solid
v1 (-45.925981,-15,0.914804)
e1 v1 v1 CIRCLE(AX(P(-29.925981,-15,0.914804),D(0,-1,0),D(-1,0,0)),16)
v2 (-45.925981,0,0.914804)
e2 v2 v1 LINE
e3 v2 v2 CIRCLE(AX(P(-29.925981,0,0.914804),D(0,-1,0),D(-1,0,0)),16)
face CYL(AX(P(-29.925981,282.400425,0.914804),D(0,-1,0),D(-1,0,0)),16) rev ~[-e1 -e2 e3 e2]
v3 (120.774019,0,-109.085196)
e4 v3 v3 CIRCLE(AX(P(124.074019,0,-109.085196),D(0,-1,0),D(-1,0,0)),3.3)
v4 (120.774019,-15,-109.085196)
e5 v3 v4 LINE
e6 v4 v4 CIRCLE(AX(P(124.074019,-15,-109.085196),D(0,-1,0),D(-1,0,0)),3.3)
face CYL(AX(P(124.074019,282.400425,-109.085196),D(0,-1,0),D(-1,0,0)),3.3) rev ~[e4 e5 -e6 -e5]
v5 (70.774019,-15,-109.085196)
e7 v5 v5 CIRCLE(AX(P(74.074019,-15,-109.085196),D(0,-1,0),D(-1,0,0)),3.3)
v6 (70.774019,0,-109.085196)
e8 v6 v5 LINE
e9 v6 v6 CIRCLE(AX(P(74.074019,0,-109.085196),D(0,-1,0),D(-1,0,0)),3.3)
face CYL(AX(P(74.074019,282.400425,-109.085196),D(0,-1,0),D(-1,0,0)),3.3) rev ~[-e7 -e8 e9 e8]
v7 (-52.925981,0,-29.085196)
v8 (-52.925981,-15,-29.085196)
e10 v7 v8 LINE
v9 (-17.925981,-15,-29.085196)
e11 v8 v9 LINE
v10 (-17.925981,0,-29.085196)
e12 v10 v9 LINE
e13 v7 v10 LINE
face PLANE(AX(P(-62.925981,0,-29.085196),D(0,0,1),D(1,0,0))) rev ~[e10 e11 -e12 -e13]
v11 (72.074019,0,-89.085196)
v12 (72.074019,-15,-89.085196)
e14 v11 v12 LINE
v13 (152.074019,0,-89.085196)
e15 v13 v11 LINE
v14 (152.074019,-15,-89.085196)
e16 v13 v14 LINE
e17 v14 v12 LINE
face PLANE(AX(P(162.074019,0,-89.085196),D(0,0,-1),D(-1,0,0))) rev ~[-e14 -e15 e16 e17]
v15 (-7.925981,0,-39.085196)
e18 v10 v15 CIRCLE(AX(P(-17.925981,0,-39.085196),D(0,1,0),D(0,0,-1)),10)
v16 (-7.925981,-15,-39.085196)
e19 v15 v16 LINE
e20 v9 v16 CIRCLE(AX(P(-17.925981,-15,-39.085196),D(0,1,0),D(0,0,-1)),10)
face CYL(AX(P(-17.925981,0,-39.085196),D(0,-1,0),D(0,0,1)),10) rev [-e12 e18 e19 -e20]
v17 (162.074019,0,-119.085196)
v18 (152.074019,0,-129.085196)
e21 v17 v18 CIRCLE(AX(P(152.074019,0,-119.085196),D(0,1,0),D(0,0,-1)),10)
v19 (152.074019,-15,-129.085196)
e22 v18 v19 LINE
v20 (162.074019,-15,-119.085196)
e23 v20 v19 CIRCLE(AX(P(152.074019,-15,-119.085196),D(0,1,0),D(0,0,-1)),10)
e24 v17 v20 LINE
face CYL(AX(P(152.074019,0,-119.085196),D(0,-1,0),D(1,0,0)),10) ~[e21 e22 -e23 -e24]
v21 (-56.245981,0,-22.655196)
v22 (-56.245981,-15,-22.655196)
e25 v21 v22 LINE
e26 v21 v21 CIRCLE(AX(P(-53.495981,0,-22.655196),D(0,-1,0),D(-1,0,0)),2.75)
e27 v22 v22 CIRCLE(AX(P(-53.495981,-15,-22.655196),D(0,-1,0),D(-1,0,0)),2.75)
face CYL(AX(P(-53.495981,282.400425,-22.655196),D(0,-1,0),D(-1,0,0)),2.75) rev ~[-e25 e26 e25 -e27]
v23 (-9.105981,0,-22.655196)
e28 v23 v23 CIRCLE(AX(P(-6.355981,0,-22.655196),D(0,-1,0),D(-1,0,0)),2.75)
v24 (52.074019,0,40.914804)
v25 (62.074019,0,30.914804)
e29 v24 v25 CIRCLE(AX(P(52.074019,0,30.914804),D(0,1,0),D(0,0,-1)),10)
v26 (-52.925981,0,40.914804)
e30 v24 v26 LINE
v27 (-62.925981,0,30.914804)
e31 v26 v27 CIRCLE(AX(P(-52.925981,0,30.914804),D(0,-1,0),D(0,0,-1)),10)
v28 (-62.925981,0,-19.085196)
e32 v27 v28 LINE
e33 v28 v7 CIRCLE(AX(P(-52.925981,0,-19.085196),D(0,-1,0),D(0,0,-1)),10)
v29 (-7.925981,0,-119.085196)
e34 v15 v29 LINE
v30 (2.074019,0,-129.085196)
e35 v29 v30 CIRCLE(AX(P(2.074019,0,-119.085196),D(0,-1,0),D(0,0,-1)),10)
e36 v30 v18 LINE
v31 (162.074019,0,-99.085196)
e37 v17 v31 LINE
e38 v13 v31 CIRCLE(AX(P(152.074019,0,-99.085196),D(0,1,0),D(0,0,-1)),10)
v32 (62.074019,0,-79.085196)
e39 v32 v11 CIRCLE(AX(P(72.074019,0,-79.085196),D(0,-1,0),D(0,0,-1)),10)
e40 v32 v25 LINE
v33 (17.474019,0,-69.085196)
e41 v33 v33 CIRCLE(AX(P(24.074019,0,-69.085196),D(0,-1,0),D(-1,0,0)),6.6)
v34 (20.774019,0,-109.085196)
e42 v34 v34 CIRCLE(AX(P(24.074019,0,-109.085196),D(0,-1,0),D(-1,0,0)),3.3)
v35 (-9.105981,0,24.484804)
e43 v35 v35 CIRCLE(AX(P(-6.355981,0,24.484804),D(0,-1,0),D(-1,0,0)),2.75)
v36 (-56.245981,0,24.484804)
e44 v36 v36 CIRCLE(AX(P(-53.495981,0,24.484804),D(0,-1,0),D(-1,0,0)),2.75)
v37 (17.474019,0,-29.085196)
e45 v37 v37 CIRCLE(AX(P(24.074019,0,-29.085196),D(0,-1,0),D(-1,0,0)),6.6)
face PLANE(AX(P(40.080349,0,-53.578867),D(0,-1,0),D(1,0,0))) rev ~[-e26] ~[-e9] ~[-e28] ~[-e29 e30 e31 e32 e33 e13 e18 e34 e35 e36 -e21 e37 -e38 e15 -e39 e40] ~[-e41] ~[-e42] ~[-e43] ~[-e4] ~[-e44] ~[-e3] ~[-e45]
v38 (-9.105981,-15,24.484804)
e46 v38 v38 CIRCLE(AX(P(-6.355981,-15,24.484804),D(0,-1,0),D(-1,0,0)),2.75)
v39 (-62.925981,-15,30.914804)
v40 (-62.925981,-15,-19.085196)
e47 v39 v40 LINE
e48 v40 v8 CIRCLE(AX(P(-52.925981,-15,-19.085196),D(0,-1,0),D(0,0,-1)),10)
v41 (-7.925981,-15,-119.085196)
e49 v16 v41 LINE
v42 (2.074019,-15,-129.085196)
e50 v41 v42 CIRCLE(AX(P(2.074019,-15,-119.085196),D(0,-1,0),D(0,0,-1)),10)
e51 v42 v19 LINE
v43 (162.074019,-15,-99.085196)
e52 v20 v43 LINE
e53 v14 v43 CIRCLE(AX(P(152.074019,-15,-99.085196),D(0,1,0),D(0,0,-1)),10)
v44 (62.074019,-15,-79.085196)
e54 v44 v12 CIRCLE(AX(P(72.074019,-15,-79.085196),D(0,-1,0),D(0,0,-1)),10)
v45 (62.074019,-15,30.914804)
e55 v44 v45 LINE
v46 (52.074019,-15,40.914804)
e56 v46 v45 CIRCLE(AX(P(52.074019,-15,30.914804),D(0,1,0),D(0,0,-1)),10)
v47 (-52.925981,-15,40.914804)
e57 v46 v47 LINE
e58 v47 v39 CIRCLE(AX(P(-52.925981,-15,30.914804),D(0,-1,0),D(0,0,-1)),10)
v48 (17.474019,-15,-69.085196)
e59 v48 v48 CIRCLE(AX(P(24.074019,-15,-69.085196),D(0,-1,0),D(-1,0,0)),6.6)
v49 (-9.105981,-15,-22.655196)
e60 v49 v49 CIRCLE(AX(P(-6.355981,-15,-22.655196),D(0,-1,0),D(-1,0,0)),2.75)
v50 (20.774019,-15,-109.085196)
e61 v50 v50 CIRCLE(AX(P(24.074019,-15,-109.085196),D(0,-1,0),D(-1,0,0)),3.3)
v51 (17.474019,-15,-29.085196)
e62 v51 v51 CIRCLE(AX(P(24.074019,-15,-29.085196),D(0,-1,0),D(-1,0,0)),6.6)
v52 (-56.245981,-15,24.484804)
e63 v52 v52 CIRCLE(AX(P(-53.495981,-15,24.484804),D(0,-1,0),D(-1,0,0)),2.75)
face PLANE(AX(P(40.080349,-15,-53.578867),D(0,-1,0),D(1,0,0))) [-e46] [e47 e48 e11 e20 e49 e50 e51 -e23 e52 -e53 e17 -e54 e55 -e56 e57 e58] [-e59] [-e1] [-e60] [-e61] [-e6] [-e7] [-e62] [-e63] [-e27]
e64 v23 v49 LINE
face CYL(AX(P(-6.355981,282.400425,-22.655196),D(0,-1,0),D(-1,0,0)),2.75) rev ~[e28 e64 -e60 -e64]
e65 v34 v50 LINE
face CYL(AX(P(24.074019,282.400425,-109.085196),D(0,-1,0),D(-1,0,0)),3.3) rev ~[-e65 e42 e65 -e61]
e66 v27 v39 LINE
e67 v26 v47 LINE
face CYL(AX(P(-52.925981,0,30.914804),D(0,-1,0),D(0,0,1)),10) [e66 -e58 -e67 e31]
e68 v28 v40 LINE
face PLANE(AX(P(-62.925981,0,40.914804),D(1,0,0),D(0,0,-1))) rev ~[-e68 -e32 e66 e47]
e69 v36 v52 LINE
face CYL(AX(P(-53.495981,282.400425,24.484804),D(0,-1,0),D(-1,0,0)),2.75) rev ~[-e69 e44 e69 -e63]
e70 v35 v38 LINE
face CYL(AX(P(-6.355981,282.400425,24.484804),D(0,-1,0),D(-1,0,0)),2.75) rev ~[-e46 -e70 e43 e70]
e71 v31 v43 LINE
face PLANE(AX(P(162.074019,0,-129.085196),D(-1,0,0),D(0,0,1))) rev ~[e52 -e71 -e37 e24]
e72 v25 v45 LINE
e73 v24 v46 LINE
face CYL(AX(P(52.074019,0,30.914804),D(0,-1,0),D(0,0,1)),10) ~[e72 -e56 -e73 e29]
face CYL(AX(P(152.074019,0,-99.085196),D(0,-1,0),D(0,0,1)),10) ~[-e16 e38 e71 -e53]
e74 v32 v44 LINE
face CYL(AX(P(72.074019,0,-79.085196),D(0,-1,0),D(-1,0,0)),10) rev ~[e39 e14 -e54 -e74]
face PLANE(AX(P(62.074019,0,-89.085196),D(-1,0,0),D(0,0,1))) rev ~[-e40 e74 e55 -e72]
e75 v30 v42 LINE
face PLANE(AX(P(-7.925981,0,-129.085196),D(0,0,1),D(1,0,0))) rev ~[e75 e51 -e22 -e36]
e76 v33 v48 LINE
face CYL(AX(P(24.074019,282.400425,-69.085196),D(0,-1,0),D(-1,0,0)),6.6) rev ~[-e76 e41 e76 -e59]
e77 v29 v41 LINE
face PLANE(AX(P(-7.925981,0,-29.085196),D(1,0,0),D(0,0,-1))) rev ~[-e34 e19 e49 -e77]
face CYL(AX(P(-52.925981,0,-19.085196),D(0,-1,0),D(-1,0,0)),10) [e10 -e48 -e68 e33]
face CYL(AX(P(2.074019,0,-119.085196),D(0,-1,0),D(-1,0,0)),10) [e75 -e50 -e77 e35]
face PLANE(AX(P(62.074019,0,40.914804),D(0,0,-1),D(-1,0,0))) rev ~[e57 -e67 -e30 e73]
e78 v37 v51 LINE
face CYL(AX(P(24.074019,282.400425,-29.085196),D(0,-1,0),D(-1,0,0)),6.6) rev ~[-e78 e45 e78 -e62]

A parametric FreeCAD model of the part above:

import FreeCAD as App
import Part
import Sketcher
Q = App.Units.Quantity


def edges_at(feature, points):
    """Names of the edges that pass closest to the given points."""
    edges = feature.Shape.Edges
    near = lambda p: min(range(len(edges)), key=lambda i: edges[i].distToShape(Part.Vertex(*p))[0])
    return sorted({f"Edge{near(p) + 1}" for p in points})

doc = App.newDocument("Part")
params = doc.addObject("Spreadsheet::Sheet", "Params")
for row, (alias, value) in enumerate([
    ("sketch1_width", "125 mm"),
    ("sketch1_width2", "55 mm"),
    ("sketch1_width3", "170 mm"),
    ("sketch1_height", "70 mm"),
    ("sketch1_height2", "40 mm"),
    ("pad1_length", "15 mm"),
    ("sketch2_diameter", "13.2 mm"),
    ("hole_diameter", "13.2 mm"),
    ("sketch3_diameter", "6.6 mm"),
    ("hole2_diameter", "6.6 mm"),
    ("fillet_radius", "10 mm"),
    ("sketch4_diameter", "32 mm"),
    ("hole3_diameter", "32 mm"),
    ("sketch5_diameter", "5.5 mm"),
    ("hole4_diameter", "5.5 mm"),
], start=1):
    params.set(f"A{row}", alias)
    params.set(f"B{row}", "=" + value)
    params.setAlias(f"B{row}", alias)

body = doc.addObject("PartDesign::Body", "Body")

sketch1 = body.newObject("Sketcher::SketchObject", "Sketch")
sketch1.AttachmentSupport = (doc.getObject("XZ_Plane"), [""])
sketch1.MapMode = "FlatFace"
sketch1.addGeometry(Part.LineSegment(App.Vector(62, 41, 0), App.Vector(-63, 41, 0)), False)
sketch1.addGeometry(Part.LineSegment(App.Vector(-63, 41, 0), App.Vector(-63, -29, 0)), False)
sketch1.addGeometry(Part.LineSegment(App.Vector(-63, -29, 0), App.Vector(-8, -29, 0)), False)
sketch1.addGeometry(Part.LineSegment(App.Vector(-8, -29, 0), App.Vector(-8, -129, 0)), False)
sketch1.addGeometry(Part.LineSegment(App.Vector(-8, -129, 0), App.Vector(162, -129, 0)), False)
sketch1.addGeometry(Part.LineSegment(App.Vector(162, -129, 0), App.Vector(162, -89, 0)), False)
sketch1.addGeometry(Part.LineSegment(App.Vector(162, -89, 0), App.Vector(62, -89, 0)), False)
sketch1.addGeometry(Part.LineSegment(App.Vector(62, -89, 0), App.Vector(62, 41, 0)), False)
sketch1.addConstraint(Sketcher.Constraint("Coincident", 0, 2, 1, 1))
sketch1.addConstraint(Sketcher.Constraint("Coincident", 1, 2, 2, 1))
sketch1.addConstraint(Sketcher.Constraint("Coincident", 2, 2, 3, 1))
sketch1.addConstraint(Sketcher.Constraint("Coincident", 3, 2, 4, 1))
sketch1.addConstraint(Sketcher.Constraint("Coincident", 4, 2, 5, 1))
sketch1.addConstraint(Sketcher.Constraint("Coincident", 5, 2, 6, 1))
sketch1.addConstraint(Sketcher.Constraint("Coincident", 6, 2, 7, 1))
sketch1.addConstraint(Sketcher.Constraint("Coincident", 7, 2, 0, 1))
sketch1.addConstraint(Sketcher.Constraint("Horizontal", 0))
sketch1.addConstraint(Sketcher.Constraint("Vertical", 1))
sketch1.addConstraint(Sketcher.Constraint("Horizontal", 2))
sketch1.addConstraint(Sketcher.Constraint("Vertical", 3))
sketch1.addConstraint(Sketcher.Constraint("Horizontal", 4))
sketch1.addConstraint(Sketcher.Constraint("Vertical", 5))
sketch1.addConstraint(Sketcher.Constraint("Horizontal", 6))
sketch1.addConstraint(Sketcher.Constraint("Vertical", 7))
sketch1.addConstraint(Sketcher.Constraint("Equal", 6, 3))
sketch1.addConstraint(Sketcher.Constraint("DistanceX", 0, 2, 0, 1, Q("125 mm")))
sketch1.addConstraint(Sketcher.Constraint("DistanceX", 2, 1, 2, 2, Q("55 mm")))
sketch1.addConstraint(Sketcher.Constraint("DistanceX", 4, 1, 4, 2, Q("170 mm")))
sketch1.addConstraint(Sketcher.Constraint("DistanceY", 1, 2, 1, 1, Q("70 mm")))
sketch1.addConstraint(Sketcher.Constraint("DistanceY", 5, 1, 5, 2, Q("40 mm")))
sketch1.addConstraint(Sketcher.Constraint("DistanceX", 0, 2, -1, 1, Q("62.925981 mm")))
sketch1.addConstraint(Sketcher.Constraint("DistanceY", -1, 1, 0, 2, Q("40.914804 mm")))
sketch1.setExpression("Constraints[17]", "Params.sketch1_width")
sketch1.setExpression("Constraints[18]", "Params.sketch1_width2")
sketch1.setExpression("Constraints[19]", "Params.sketch1_width3")
sketch1.setExpression("Constraints[20]", "Params.sketch1_height")
sketch1.setExpression("Constraints[21]", "Params.sketch1_height2")
pad1 = body.newObject("PartDesign::Pad", "Pad")
pad1.Profile = sketch1
pad1.setExpression("Length", "Params.pad1_length")

sketch2 = body.newObject("Sketcher::SketchObject", "Sketch001")
sketch2.AttachmentSupport = (doc.getObject("XZ_Plane"), [""])
sketch2.MapMode = "FlatFace"
sketch2.addGeometry(Part.Circle(App.Vector(24, -69, 0), App.Vector(0, 0, 1), 7), False)
sketch2.addGeometry(Part.Circle(App.Vector(24, -29, 0), App.Vector(0, 0, 1), 7), False)
sketch2.addConstraint(Sketcher.Constraint("Equal", 0, 1))
sketch2.addConstraint(Sketcher.Constraint("Vertical", 0, 3, 1, 3))
sketch2.addConstraint(Sketcher.Constraint("Diameter", 0, Q("13.2 mm")))
sketch2.addConstraint(Sketcher.Constraint("DistanceY", 0, 3, 1, 3, Q("40 mm")))
sketch2.addConstraint(Sketcher.Constraint("DistanceX", -1, 1, 0, 3, Q("24.074019 mm")))
sketch2.addConstraint(Sketcher.Constraint("DistanceY", 0, 3, -1, 1, Q("69.085196 mm")))
sketch2.setExpression("Constraints[2]", "Params.sketch2_diameter")
doc.recompute()
hole = body.newObject("PartDesign::Hole", "Hole")
hole.Profile = sketch2
hole.ThreadType = "None"
hole.setExpression("Diameter", "Params.hole_diameter")
hole.DepthType = "ThroughAll"
hole.Reversed = True

sketch3 = body.newObject("Sketcher::SketchObject", "Sketch002")
sketch3.AttachmentSupport = (doc.getObject("XZ_Plane"), [""])
sketch3.MapMode = "FlatFace"
sketch3.addGeometry(Part.Circle(App.Vector(24.1, -109.1, 0), App.Vector(0, 0, 1), 3.3), False)
sketch3.addGeometry(Part.Circle(App.Vector(74.1, -109.1, 0), App.Vector(0, 0, 1), 3.3), False)
sketch3.addGeometry(Part.Circle(App.Vector(124.1, -109.1, 0), App.Vector(0, 0, 1), 3.3), False)
sketch3.addConstraint(Sketcher.Constraint("Equal", 0, 1))
sketch3.addConstraint(Sketcher.Constraint("Equal", 1, 2))
sketch3.addConstraint(Sketcher.Constraint("Horizontal", 0, 3, 1, 3))
sketch3.addConstraint(Sketcher.Constraint("Horizontal", 1, 3, 2, 3))
sketch3.addConstraint(Sketcher.Constraint("Diameter", 0, Q("6.6 mm")))
sketch3.addConstraint(Sketcher.Constraint("DistanceX", 0, 3, 1, 3, Q("50 mm")))
sketch3.addConstraint(Sketcher.Constraint("DistanceX", 1, 3, 2, 3, Q("50 mm")))
sketch3.addConstraint(Sketcher.Constraint("DistanceX", -1, 1, 0, 3, Q("24.074019 mm")))
sketch3.addConstraint(Sketcher.Constraint("DistanceY", 0, 3, -1, 1, Q("109.085196 mm")))
sketch3.setExpression("Constraints[4]", "Params.sketch3_diameter")
doc.recompute()
hole2 = body.newObject("PartDesign::Hole", "Hole001")
hole2.Profile = sketch3
hole2.ThreadType = "None"
hole2.setExpression("Diameter", "Params.hole2_diameter")
hole2.DepthType = "ThroughAll"
hole2.Reversed = True
doc.recompute()

fillet = body.newObject("PartDesign::Fillet", "Fillet")
fillet.Base = (hole2, edges_at(hole2, [
    (62.074, -7.5, 40.915),
    (62.074, -7.5, -89.085),
    (162.074, -7.5, -129.085),
    (162.074, -7.5, -89.085),
    (-7.926, -7.5, -129.085),
    (-7.926, -7.5, -29.085),
    (-62.926, -7.5, 40.915),
    (-62.926, -7.5, -29.085),
]))
fillet.setExpression("Radius", "Params.fillet_radius")

sketch4 = body.newObject("Sketcher::SketchObject", "Sketch003")
sketch4.AttachmentSupport = (doc.getObject("XZ_Plane"), [""])
sketch4.MapMode = "FlatFace"
sketch4.addGeometry(Part.Circle(App.Vector(-30, 1, 0), App.Vector(0, 0, 1), 16), False)
sketch4.addConstraint(Sketcher.Constraint("Diameter", 0, Q("32 mm")))
sketch4.addConstraint(Sketcher.Constraint("DistanceX", 0, 3, -1, 1, Q("29.925981 mm")))
sketch4.addConstraint(Sketcher.Constraint("DistanceY", -1, 1, 0, 3, Q("0.914804 mm")))
sketch4.setExpression("Constraints[0]", "Params.sketch4_diameter")
doc.recompute()
hole3 = body.newObject("PartDesign::Hole", "Hole002")
hole3.Profile = sketch4
hole3.ThreadType = "None"
hole3.setExpression("Diameter", "Params.hole3_diameter")
hole3.DepthType = "ThroughAll"
hole3.Reversed = True

sketch5 = body.newObject("Sketcher::SketchObject", "Sketch004")
sketch5.AttachmentSupport = (doc.getObject("XZ_Plane"), [""])
sketch5.MapMode = "FlatFace"
sketch5.addGeometry(Part.Circle(App.Vector(-53.5, 24.5, 0), App.Vector(0, 0, 1), 2.8), False)
sketch5.addGeometry(Part.Circle(App.Vector(-6.4, 24.5, 0), App.Vector(0, 0, 1), 2.8), False)
sketch5.addGeometry(Part.Circle(App.Vector(-6.4, -22.7, 0), App.Vector(0, 0, 1), 2.8), False)
sketch5.addGeometry(Part.Circle(App.Vector(-53.5, -22.7, 0), App.Vector(0, 0, 1), 2.8), False)
sketch5.addConstraint(Sketcher.Constraint("Equal", 0, 1))
sketch5.addConstraint(Sketcher.Constraint("Equal", 1, 2))
sketch5.addConstraint(Sketcher.Constraint("Equal", 2, 3))
sketch5.addConstraint(Sketcher.Constraint("Horizontal", 0, 3, 1, 3))
sketch5.addConstraint(Sketcher.Constraint("Horizontal", 2, 3, 3, 3))
sketch5.addConstraint(Sketcher.Constraint("Vertical", 1, 3, 2, 3))
sketch5.addConstraint(Sketcher.Constraint("Vertical", 0, 3, 3, 3))
sketch5.addConstraint(Sketcher.Constraint("Diameter", 0, Q("5.5 mm")))
sketch5.addConstraint(Sketcher.Constraint("DistanceX", 0, 3, 1, 3, Q("47.14 mm")))
sketch5.addConstraint(Sketcher.Constraint("DistanceY", 2, 3, 1, 3, Q("47.14 mm")))
sketch5.addConstraint(Sketcher.Constraint("DistanceX", 0, 3, -1, 1, Q("53.495981 mm")))
sketch5.addConstraint(Sketcher.Constraint("DistanceY", -1, 1, 0, 3, Q("24.484804 mm")))
sketch5.setExpression("Constraints[7]", "Params.sketch5_diameter")
doc.recompute()
hole4 = body.newObject("PartDesign::Hole", "Hole003")
hole4.Profile = sketch5
hole4.ThreadType = "None"
hole4.setExpression("Diameter", "Params.hole4_diameter")
hole4.DepthType = "ThroughAll"
hole4.Reversed = True

doc.recompute()
